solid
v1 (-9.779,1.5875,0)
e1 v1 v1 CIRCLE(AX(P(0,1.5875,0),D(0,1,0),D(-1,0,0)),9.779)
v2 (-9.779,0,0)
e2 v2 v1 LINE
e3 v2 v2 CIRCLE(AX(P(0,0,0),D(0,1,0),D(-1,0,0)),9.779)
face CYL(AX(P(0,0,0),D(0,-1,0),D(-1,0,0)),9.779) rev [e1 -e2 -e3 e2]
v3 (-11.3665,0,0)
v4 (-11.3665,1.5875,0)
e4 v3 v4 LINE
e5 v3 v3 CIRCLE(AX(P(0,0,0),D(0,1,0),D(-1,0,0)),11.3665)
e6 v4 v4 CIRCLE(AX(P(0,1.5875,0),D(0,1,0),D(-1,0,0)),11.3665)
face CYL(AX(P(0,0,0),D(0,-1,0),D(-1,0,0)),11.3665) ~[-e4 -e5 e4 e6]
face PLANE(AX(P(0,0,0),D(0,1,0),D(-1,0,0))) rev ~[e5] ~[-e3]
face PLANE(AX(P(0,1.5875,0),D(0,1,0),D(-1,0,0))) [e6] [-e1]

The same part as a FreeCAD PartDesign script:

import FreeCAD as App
import Part
import Sketcher
Q = App.Units.Quantity

doc = App.newDocument("Part")
params = doc.addObject("Spreadsheet::Sheet", "Params")
for row, (alias, value) in enumerate([
    ("sketch1_diameter", "0.77 in"),
    ("sketch1_diameter2", "0.895 in"),
    ("pad1_length", "0.0625 in"),
], start=1):
    params.set(f"A{row}", alias)
    params.set(f"B{row}", "=" + value)
    params.setAlias(f"B{row}", alias)

body = doc.addObject("PartDesign::Body", "Body")

# Sketch on XZ plane
sketch1 = body.newObject("Sketcher::SketchObject", "Sketch")
sketch1.AttachmentSupport = (doc.getObject("XZ_Plane"), [""])
sketch1.MapMode = "FlatFace"
sketch1.addGeometry([
    Part.Circle(App.Vector(0, 0, 0), App.Vector(0, 0, 1), 11),
    Part.Circle(App.Vector(0, 0, 0), App.Vector(0, 0, 1), 10),
], False)
sketch1.addConstraint([
    Sketcher.Constraint("Coincident", 0, 3, -1, 1),
    Sketcher.Constraint("Coincident", 1, 3, -1, 1),
    Sketcher.Constraint("Diameter", 1, Q("0.77 in")),
    Sketcher.Constraint("Diameter", 0, Q("0.895 in")),
])
sketch1.setExpression("Constraints[2]", "Params.sketch1_diameter")
sketch1.setExpression("Constraints[3]", "Params.sketch1_diameter2")
pad1 = body.newObject("PartDesign::Pad", "Pad")
pad1.Profile = sketch1
pad1.setExpression("Length", "Params.pad1_length")
pad1.Reversed = True

doc.recompute()
